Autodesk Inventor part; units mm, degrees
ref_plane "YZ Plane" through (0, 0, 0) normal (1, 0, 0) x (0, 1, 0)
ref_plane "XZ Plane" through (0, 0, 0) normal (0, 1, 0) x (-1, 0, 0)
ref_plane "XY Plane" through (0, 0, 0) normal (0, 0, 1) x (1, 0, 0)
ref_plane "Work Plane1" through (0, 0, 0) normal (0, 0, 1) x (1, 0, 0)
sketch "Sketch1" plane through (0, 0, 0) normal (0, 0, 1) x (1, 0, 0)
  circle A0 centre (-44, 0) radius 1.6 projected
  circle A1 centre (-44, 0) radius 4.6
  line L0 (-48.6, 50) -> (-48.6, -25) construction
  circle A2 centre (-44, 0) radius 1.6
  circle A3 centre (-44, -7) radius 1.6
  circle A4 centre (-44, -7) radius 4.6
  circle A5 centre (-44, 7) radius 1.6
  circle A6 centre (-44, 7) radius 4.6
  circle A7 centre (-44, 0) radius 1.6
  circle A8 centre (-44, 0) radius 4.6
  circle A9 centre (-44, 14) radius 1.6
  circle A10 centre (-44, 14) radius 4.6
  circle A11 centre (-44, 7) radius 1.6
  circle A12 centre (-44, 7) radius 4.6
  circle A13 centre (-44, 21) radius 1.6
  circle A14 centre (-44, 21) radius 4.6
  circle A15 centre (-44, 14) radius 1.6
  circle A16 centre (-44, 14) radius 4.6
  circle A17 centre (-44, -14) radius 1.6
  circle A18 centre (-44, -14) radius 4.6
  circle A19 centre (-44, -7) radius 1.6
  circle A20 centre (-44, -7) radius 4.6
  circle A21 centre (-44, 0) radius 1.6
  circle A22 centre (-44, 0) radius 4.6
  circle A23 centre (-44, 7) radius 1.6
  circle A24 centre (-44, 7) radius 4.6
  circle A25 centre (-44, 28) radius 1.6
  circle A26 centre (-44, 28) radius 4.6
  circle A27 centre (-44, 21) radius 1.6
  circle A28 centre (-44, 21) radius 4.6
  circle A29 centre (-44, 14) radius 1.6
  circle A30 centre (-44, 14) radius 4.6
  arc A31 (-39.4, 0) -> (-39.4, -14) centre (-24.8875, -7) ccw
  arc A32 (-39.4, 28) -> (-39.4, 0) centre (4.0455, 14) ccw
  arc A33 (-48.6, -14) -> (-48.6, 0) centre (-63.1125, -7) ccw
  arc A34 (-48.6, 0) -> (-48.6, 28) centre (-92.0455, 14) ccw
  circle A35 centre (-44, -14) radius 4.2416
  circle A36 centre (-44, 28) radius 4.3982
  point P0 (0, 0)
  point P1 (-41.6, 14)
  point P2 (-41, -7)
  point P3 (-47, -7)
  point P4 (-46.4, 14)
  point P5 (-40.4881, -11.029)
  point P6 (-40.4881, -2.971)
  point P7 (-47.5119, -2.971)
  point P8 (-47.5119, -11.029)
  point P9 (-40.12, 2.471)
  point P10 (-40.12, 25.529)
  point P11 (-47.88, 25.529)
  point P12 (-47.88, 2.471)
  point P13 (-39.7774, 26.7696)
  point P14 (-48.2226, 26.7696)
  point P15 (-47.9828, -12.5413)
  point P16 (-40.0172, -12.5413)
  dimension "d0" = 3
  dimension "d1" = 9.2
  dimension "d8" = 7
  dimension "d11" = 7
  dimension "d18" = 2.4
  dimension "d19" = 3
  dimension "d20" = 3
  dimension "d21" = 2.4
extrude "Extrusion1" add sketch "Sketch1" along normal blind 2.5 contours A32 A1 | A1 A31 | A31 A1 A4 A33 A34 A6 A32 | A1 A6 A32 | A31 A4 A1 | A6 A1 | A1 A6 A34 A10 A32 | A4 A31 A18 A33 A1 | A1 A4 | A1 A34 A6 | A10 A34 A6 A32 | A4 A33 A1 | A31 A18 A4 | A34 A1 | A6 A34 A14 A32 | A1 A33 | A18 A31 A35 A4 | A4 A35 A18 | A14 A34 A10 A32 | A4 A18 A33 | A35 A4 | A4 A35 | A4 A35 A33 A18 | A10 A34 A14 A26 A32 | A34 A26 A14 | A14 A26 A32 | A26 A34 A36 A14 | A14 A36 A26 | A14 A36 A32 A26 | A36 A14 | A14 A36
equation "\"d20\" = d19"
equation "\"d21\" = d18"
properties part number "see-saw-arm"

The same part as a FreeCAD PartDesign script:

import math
import FreeCAD as App
import Part
import Sketcher
from FreeCAD import Vector
Q = App.Units.Quantity

doc = App.newDocument("Part")
params = doc.addObject("Spreadsheet::Sheet", "Params")
for row, (alias, value) in enumerate([
    ("sketch1_radius", "4.6 mm"),
    ("sketch1_diameter", "3.2 mm"),
    ("pad1_length", "2.5 mm"),
], start=1):
    params.set(f"A{row}", alias)
    params.set(f"B{row}", "=" + value)
    params.setAlias(f"B{row}", alias)

body = doc.addObject("PartDesign::Body", "Body")

# Sketch on XY plane
sketch1 = body.newObject("Sketcher::SketchObject", "Sketch")
sketch1.AttachmentSupport = (doc.getObject("XY_Plane"), [""])
sketch1.MapMode = "FlatFace"
sketch1.addGeometry(Part.ArcOfCircle(Part.Circle(Vector(4, 14, 0), Vector(0, 0, 1), 45.6), math.radians(164), math.radians(195)), False)
sketch1.addGeometry(Part.ArcOfCircle(Part.Circle(Vector(-44, 28, 0), Vector(0, 0, 1), 4.4), math.radians(-16), math.radians(196)), False)
sketch1.addGeometry(Part.ArcOfCircle(Part.Circle(Vector(-92, 14, 0), Vector(0, 0, 1), 45.6), math.radians(-15), math.radians(16)), False)
sketch1.addGeometry(Part.ArcOfCircle(Part.Circle(Vector(-44, 0, 0), Vector(0, 0, 1), 4.6), math.radians(148), math.radians(220)), False)
sketch1.addGeometry(Part.ArcOfCircle(Part.Circle(Vector(-63.1, -7, 0), Vector(0, 0, 1), 16.1), math.radians(-20), math.radians(14)), False)
sketch1.addGeometry(Part.ArcOfCircle(Part.Circle(Vector(-44, -14, 0), Vector(0, 0, 1), 4.2), math.radians(160), math.radians(380)), False)
sketch1.addGeometry(Part.ArcOfCircle(Part.Circle(Vector(-24.9, -7, 0), Vector(0, 0, 1), 16.1), math.radians(166), math.radians(200)), False)
sketch1.addGeometry(Part.ArcOfCircle(Part.Circle(Vector(-44, 0, 0), Vector(0, 0, 1), 4.6), math.radians(-40), math.radians(32)), False)
sketch1.addGeometry(Part.Circle(Vector(-44, 0, 0), Vector(0, 0, 1), 1.6), False)
sketch1.addGeometry(Part.Circle(Vector(-44, -7, 0), Vector(0, 0, 1), 1.6), False)
sketch1.addGeometry(Part.Circle(Vector(-44, 7, 0), Vector(0, 0, 1), 1.6), False)
sketch1.addGeometry(Part.Circle(Vector(-44, 14, 0), Vector(0, 0, 1), 1.6), False)
sketch1.addGeometry(Part.Circle(Vector(-44, -14, 0), Vector(0, 0, 1), 1.6), False)
sketch1.addGeometry(Part.Circle(Vector(-44, 21, 0), Vector(0, 0, 1), 1.6), False)
sketch1.addGeometry(Part.Circle(Vector(-44, 28, 0), Vector(0, 0, 1), 1.6), False)
sketch1.addConstraint(Sketcher.Constraint("Tangent", 0, 1, 1, 1))
sketch1.addConstraint(Sketcher.Constraint("Tangent", 1, 2, 2, 2))
sketch1.addConstraint(Sketcher.Constraint("Coincident", 2, 1, 3, 1))
sketch1.addConstraint(Sketcher.Constraint("Coincident", 3, 2, 4, 2))
sketch1.addConstraint(Sketcher.Constraint("Tangent", 4, 1, 5, 1))
sketch1.addConstraint(Sketcher.Constraint("Tangent", 5, 2, 6, 2))
sketch1.addConstraint(Sketcher.Constraint("Coincident", 6, 1, 7, 1))
sketch1.addConstraint(Sketcher.Constraint("Coincident", 7, 2, 0, 2))
sketch1.addConstraint(Sketcher.Constraint("Coincident", 7, 3, 3, 3))
sketch1.addConstraint(Sketcher.Constraint("Coincident", 8, 3, 3, 3))
sketch1.addConstraint(Sketcher.Constraint("Coincident", 12, 3, 5, 3))
sketch1.addConstraint(Sketcher.Constraint("Coincident", 14, 3, 1, 3))
sketch1.addConstraint(Sketcher.Constraint("Equal", 0, 2))
sketch1.addConstraint(Sketcher.Constraint("Equal", 4, 6))
sketch1.addConstraint(Sketcher.Constraint("Equal", 3, 7))
sketch1.addConstraint(Sketcher.Constraint("Equal", 8, 9))
sketch1.addConstraint(Sketcher.Constraint("Equal", 9, 10))
sketch1.addConstraint(Sketcher.Constraint("Equal", 10, 11))
sketch1.addConstraint(Sketcher.Constraint("Equal", 11, 12))
sketch1.addConstraint(Sketcher.Constraint("Equal", 12, 13))
sketch1.addConstraint(Sketcher.Constraint("Equal", 13, 14))
sketch1.addConstraint(Sketcher.Constraint("Symmetric", 9, 3, 10, 3, -1))
sketch1.addConstraint(Sketcher.Constraint("Symmetric", 5, 3, 11, 3, -1))
sketch1.addConstraint(Sketcher.Constraint("PointOnObject", 3, 3, -1))
sketch1.addConstraint(Sketcher.Constraint("Horizontal", 0, 3, 2, 3))
sketch1.addConstraint(Sketcher.Constraint("Horizontal", 4, 3, 6, 3))
sketch1.addConstraint(Sketcher.Constraint("Horizontal", 6, 3, 9, 3))
sketch1.addConstraint(Sketcher.Constraint("Horizontal", 2, 3, 11, 3))
sketch1.addConstraint(Sketcher.Constraint("Horizontal", 3, 2, 6, 1))
sketch1.addConstraint(Sketcher.Constraint("Horizontal", 2, 1, 7, 2))
sketch1.addConstraint(Sketcher.Constraint("Vertical", 8, 3, 9, 3))
sketch1.addConstraint(Sketcher.Constraint("Vertical", 12, 3, 13, 3))
sketch1.addConstraint(Sketcher.Constraint("Radius", 3, Q("4.6 mm")))
sketch1.addConstraint(Sketcher.Constraint("DistanceY", 4, 3, -1, 1, Q("7 mm")))
sketch1.addConstraint(Sketcher.Constraint("DistanceY", 5, 3, 4, 3, Q("7 mm")))
sketch1.addConstraint(Sketcher.Constraint("DistanceY", 13, 3, 1, 3, Q("7 mm")))
sketch1.addConstraint(Sketcher.Constraint("DistanceY", 11, 3, 13, 3, Q("7 mm")))
sketch1.addConstraint(Sketcher.Constraint("Diameter", 8, Q("3.2 mm")))
sketch1.addConstraint(Sketcher.Constraint("DistanceX", 1, 3, -1, 1, Q("44 mm")))
sketch1.addConstraint(Sketcher.Constraint("Radius", 0, Q("45.6455 mm")))
sketch1.addConstraint(Sketcher.Constraint("Radius", 1, Q("4.3982 mm")))
sketch1.addConstraint(Sketcher.Constraint("Radius", 4, Q("16.1125 mm")))
sketch1.addConstraint(Sketcher.Constraint("Radius", 5, Q("4.2416 mm")))
sketch1.setExpression("Constraints[32]", "Params.sketch1_radius")
sketch1.setExpression("Constraints[37]", "Params.sketch1_diameter")
pad1 = body.newObject("PartDesign::Pad", "Pad")
pad1.Profile = sketch1
pad1.setExpression("Length", "Params.pad1_length")

doc.recompute()
